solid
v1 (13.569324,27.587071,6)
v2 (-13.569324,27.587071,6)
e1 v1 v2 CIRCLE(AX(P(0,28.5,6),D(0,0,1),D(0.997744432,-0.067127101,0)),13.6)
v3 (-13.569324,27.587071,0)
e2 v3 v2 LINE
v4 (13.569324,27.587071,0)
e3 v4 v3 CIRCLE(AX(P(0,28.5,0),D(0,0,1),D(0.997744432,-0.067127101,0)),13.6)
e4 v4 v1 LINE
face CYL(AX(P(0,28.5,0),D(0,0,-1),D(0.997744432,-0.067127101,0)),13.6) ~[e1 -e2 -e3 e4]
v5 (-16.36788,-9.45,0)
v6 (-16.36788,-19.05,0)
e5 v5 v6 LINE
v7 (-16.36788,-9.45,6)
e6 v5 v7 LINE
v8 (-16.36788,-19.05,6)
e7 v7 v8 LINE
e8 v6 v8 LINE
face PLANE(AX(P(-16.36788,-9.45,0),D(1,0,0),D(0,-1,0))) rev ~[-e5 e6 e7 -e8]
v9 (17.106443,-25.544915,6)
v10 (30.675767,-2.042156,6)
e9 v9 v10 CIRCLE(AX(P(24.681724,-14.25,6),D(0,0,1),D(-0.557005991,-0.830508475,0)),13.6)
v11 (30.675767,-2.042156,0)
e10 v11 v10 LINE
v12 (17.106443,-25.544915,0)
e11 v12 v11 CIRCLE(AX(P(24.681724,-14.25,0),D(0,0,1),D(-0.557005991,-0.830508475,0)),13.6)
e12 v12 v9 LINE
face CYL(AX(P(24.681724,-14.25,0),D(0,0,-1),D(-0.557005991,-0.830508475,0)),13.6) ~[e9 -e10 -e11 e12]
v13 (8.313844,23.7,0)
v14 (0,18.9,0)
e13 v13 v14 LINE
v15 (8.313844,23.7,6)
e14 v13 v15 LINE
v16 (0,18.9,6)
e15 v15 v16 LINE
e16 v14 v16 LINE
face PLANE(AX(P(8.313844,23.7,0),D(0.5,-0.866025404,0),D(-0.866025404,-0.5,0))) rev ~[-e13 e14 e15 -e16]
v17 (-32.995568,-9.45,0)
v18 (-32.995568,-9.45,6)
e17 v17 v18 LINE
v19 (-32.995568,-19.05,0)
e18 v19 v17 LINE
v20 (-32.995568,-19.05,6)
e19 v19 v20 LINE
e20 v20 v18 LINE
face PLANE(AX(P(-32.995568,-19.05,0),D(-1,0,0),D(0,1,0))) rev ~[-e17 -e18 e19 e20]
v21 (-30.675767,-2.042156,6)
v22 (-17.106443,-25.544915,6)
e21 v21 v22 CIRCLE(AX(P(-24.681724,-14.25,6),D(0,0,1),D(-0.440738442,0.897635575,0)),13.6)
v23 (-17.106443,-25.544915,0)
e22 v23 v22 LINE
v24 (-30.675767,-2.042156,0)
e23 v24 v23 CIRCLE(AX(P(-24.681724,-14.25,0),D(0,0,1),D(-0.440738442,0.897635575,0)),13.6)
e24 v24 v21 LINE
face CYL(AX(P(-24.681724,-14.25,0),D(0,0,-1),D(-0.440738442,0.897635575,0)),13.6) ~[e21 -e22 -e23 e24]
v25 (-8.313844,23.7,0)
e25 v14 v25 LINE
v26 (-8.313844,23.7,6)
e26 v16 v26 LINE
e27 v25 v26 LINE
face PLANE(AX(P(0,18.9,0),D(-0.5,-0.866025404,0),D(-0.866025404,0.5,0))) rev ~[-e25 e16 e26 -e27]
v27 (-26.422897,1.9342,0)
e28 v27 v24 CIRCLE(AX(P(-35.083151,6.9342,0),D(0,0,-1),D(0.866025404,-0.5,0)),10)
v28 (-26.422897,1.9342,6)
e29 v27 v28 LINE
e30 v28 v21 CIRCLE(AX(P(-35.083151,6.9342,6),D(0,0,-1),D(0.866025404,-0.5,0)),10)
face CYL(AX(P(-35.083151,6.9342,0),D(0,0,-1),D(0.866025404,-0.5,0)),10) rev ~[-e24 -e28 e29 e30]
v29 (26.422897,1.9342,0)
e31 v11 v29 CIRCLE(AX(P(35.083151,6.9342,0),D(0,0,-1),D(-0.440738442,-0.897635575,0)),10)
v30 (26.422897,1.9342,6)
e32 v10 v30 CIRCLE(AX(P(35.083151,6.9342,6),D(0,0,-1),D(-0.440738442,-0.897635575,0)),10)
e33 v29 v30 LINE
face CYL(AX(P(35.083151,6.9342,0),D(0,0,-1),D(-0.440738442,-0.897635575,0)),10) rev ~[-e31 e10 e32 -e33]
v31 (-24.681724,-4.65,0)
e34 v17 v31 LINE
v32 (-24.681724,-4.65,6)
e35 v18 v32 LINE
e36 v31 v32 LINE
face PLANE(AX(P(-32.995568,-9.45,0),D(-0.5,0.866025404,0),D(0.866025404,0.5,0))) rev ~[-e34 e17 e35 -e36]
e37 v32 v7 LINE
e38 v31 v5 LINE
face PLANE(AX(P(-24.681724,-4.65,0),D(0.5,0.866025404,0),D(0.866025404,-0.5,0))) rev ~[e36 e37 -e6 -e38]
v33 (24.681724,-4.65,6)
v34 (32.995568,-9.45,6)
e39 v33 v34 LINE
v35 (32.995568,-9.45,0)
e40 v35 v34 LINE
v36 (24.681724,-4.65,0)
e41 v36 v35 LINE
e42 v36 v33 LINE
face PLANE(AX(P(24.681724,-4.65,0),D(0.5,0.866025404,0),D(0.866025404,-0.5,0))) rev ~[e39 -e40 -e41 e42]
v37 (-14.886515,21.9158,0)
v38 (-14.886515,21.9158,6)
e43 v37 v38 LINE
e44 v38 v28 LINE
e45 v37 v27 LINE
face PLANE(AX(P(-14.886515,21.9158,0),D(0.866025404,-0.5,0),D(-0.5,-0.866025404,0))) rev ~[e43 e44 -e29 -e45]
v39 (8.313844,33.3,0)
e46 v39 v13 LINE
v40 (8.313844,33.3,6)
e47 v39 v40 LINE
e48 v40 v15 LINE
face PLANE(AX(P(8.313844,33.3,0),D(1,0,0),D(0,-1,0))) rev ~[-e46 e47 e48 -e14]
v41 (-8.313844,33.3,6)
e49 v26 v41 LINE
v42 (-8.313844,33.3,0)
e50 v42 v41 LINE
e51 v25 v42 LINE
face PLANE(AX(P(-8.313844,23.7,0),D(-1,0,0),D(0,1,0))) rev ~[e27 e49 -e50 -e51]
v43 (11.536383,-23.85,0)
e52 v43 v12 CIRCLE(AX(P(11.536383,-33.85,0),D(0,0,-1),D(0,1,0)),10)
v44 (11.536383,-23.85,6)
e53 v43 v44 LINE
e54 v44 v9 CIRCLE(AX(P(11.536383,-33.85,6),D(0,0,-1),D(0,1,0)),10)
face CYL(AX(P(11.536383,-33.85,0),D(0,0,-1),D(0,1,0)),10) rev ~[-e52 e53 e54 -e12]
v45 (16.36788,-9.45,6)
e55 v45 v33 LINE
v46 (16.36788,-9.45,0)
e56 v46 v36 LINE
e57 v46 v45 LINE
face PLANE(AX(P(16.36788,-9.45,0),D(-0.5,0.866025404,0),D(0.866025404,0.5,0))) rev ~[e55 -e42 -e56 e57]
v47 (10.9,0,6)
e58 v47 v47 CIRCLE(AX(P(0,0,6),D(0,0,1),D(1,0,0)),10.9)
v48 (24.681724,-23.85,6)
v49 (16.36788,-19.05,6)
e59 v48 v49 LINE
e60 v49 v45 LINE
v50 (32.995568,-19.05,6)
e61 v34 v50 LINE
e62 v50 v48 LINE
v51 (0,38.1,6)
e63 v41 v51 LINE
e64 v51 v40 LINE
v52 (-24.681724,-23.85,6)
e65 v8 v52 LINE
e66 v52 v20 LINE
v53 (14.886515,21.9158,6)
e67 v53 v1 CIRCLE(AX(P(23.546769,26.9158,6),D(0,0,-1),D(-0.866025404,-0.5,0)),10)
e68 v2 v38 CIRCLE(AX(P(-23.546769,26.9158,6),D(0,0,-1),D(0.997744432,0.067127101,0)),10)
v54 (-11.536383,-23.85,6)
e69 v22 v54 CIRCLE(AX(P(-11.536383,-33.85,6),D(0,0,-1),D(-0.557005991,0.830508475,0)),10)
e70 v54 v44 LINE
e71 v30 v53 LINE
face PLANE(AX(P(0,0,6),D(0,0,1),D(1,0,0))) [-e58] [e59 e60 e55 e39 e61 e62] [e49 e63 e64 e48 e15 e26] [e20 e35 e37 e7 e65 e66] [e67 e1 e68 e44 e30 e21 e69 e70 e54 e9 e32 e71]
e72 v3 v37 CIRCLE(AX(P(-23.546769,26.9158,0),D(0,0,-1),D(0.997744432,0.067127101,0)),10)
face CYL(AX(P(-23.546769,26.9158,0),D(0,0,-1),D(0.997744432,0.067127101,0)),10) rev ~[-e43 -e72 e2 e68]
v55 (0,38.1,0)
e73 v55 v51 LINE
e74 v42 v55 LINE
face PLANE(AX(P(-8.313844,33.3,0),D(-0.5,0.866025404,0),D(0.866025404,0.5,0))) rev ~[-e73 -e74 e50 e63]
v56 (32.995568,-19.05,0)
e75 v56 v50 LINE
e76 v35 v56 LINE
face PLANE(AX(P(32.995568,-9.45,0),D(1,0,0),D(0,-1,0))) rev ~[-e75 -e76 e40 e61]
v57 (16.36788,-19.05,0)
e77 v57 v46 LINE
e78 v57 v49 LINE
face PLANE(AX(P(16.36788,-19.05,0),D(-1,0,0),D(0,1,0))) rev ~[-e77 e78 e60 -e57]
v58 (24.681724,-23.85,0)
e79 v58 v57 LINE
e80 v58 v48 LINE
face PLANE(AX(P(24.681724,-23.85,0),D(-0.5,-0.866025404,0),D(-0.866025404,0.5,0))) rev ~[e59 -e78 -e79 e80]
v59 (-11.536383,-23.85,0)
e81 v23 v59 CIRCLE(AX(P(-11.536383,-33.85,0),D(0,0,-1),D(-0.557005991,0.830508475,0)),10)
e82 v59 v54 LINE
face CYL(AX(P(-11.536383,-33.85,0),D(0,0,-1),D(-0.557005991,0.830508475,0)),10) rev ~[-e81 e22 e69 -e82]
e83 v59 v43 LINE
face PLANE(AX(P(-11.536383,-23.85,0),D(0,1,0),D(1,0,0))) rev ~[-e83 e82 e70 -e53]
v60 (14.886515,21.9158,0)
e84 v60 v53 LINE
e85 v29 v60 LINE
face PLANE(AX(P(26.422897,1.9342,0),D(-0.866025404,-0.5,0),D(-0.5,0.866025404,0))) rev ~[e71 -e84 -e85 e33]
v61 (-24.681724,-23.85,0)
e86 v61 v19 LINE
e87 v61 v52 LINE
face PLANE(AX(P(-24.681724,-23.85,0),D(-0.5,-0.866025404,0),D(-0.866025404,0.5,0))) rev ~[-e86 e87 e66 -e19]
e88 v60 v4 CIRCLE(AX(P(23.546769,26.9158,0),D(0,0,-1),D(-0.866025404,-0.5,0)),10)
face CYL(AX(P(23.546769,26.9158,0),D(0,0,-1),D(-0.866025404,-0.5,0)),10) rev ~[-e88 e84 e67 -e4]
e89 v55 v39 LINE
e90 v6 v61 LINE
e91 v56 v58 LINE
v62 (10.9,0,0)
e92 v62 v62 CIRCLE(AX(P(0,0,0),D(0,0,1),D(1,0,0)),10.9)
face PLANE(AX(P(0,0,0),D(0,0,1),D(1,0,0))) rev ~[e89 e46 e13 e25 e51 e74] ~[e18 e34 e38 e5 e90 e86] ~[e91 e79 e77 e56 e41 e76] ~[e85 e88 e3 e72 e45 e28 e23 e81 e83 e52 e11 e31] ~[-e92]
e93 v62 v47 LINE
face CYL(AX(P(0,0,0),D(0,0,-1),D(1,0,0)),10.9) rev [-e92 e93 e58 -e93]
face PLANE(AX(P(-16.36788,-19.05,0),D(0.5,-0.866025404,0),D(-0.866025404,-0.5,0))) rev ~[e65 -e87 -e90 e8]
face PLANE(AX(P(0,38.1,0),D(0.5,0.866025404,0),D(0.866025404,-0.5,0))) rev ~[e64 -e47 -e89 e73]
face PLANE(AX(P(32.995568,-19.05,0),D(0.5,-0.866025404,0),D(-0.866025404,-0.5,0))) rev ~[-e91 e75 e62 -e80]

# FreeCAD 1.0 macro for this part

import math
import FreeCAD as App
import Part
import Sketcher

V = App.Vector
Q = App.Units.Quantity


def add_polygon(sketch, points):
    """Adds a closed chain of lines whose ends are joined by coincident constraints."""
    first, n = sketch.GeometryCount, len(points)
    for a, b in zip(points, points[1:] + points[:1]):
        sketch.addGeometry(Part.LineSegment(App.Vector(*a, 0), App.Vector(*b, 0)), False)
    for i in range(n):
        sketch.addConstraint(Sketcher.Constraint("Coincident", first + i, 2, first + (i + 1) % n, 1))

doc = App.newDocument("Part")
params = doc.addObject("Spreadsheet::Sheet", "Params")
for row, (alias, value) in enumerate([
    ("sketch1_radius", "10 mm"),
    ("sketch1_diameter", "21.8 mm"),
    ("sketch1_radius2", "13.6 mm"),
    ("sketch1_height", "9.6 mm"),
    ("sketch1_length", "9.6 mm"),
    ("pad1_length", "6 mm"),
], start=1):
    params.set(f"A{row}", alias)
    params.set(f"B{row}", "=" + value)
    params.setAlias(f"B{row}", alias)

body = doc.addObject("PartDesign::Body", "Body")

sketch1 = doc.addObject("Sketcher::SketchObject", "Sketch")
body.addObject(sketch1)
sketch1.AttachmentSupport = (doc.XY_Plane, [""])
sketch1.MapMode = "FlatFace"
sketch1.addGeometry(Part.ArcOfCircle(Part.Circle(V(23.546769, 26.9158, 0), V(0, 0, 1), 10), math.radians(176.151006), math.radians(210)), False)
sketch1.addGeometry(Part.ArcOfCircle(Part.Circle(V(0, 28.5, 0), V(0, 0, 1), 13.6), math.radians(-3.848994), math.radians(183.848994)), False)
sketch1.addGeometry(Part.ArcOfCircle(Part.Circle(V(-23.546769, 26.9158, 0), V(0, 0, 1), 10), math.radians(-30), math.radians(3.848994)), False)
sketch1.addGeometry(Part.LineSegment(V(-14.886515, 21.9158, 0), V(-26.422897, 1.9342, 0)), False)
sketch1.addGeometry(Part.ArcOfCircle(Part.Circle(V(-35.083151, 6.9342, 0), V(0, 0, 1), 10), math.radians(-63.848994), math.radians(-30)), False)
sketch1.addGeometry(Part.ArcOfCircle(Part.Circle(V(-24.681724, -14.25, 0), V(0, 0, 1), 13.6), math.radians(116.151006), math.radians(303.848994)), False)
sketch1.addGeometry(Part.ArcOfCircle(Part.Circle(V(-11.536383, -33.85, 0), V(0, 0, 1), 10), math.radians(90), math.radians(123.848994)), False)
sketch1.addGeometry(Part.LineSegment(V(-11.536383, -23.85, 0), V(11.536383, -23.85, 0)), False)
sketch1.addGeometry(Part.ArcOfCircle(Part.Circle(V(11.536383, -33.85, 0), V(0, 0, 1), 10), math.radians(56.151006), math.radians(90)), False)
sketch1.addGeometry(Part.ArcOfCircle(Part.Circle(V(24.681724, -14.25, 0), V(0, 0, 1), 13.6), math.radians(-123.848994), math.radians(63.848994)), False)
sketch1.addGeometry(Part.ArcOfCircle(Part.Circle(V(35.083151, 6.9342, 0), V(0, 0, 1), 10), math.radians(-150), math.radians(-116.151006)), False)
sketch1.addGeometry(Part.LineSegment(V(26.422897, 1.9342, 0), V(14.886515, 21.9158, 0)), False)
add_polygon(sketch1, [(-32.995568, -19.05), (-32.995568, -9.45), (-24.681724, -4.65), (-16.36788, -9.45), (-16.36788, -19.05), (-24.681724, -23.85)])
add_polygon(sketch1, [(16.36788, -19.05), (16.36788, -9.45), (24.681724, -4.65), (32.995568, -9.45), (32.995568, -19.05), (24.681724, -23.85)])
sketch1.addGeometry(Part.Circle(V(0, 0, 0), V(0, 0, 1), 10.9), False)
add_polygon(sketch1, [(-8.313844, 33.3), (0, 38.1), (8.313844, 33.3), (8.313844, 23.7), (0, 18.9), (-8.313844, 23.7)])
sketch1.addConstraint(Sketcher.Constraint("Tangent", 0, 1, 1, 1))
sketch1.addConstraint(Sketcher.Constraint("Tangent", 1, 2, 2, 2))
sketch1.addConstraint(Sketcher.Constraint("Tangent", 2, 1, 3, 1))
sketch1.addConstraint(Sketcher.Constraint("Tangent", 3, 2, 4, 2))
sketch1.addConstraint(Sketcher.Constraint("Tangent", 4, 1, 5, 1))
sketch1.addConstraint(Sketcher.Constraint("Tangent", 5, 2, 6, 2))
sketch1.addConstraint(Sketcher.Constraint("Tangent", 6, 1, 7, 1))
sketch1.addConstraint(Sketcher.Constraint("Tangent", 7, 2, 8, 2))
sketch1.addConstraint(Sketcher.Constraint("Tangent", 8, 1, 9, 1))
sketch1.addConstraint(Sketcher.Constraint("Tangent", 9, 2, 10, 2))
sketch1.addConstraint(Sketcher.Constraint("Tangent", 10, 1, 11, 1))
sketch1.addConstraint(Sketcher.Constraint("Tangent", 11, 2, 0, 2))
sketch1.addConstraint(Sketcher.Constraint("Horizontal", 7))
sketch1.addConstraint(Sketcher.Constraint("Vertical", 12))
sketch1.addConstraint(Sketcher.Constraint("Vertical", 15))
sketch1.addConstraint(Sketcher.Constraint("Vertical", 18))
sketch1.addConstraint(Sketcher.Constraint("Vertical", 21))
sketch1.addConstraint(Sketcher.Constraint("Vertical", 27))
sketch1.addConstraint(Sketcher.Constraint("Vertical", 30))
sketch1.addConstraint(Sketcher.Constraint("Coincident", 24, 3, -1, 1))
sketch1.addConstraint(Sketcher.Constraint("Equal", 0, 2))
sketch1.addConstraint(Sketcher.Constraint("Equal", 2, 4))
sketch1.addConstraint(Sketcher.Constraint("Equal", 1, 5))
sketch1.addConstraint(Sketcher.Constraint("Equal", 4, 6))
sketch1.addConstraint(Sketcher.Constraint("Equal", 6, 8))
sketch1.addConstraint(Sketcher.Constraint("Equal", 5, 9))
sketch1.addConstraint(Sketcher.Constraint("Equal", 8, 10))
sketch1.addConstraint(Sketcher.Constraint("Symmetric", 0, 3, 2, 3, -2))
sketch1.addConstraint(Sketcher.Constraint("Symmetric", 5, 3, 9, 3, -2))
sketch1.addConstraint(Sketcher.Constraint("Symmetric", 14, 2, 18, 2, -2))
sketch1.addConstraint(Sketcher.Constraint("Symmetric", 13, 2, 19, 2, -2))
sketch1.addConstraint(Sketcher.Constraint("Symmetric", 12, 2, 20, 2, -2))
sketch1.addConstraint(Sketcher.Constraint("Symmetric", 16, 2, 22, 2, -2))
sketch1.addConstraint(Sketcher.Constraint("Symmetric", 27, 2, 29, 2, -2))
sketch1.addConstraint(Sketcher.Constraint("PointOnObject", 25, 2, -2))
sketch1.addConstraint(Sketcher.Constraint("PointOnObject", 28, 2, -2))
sketch1.addConstraint(Sketcher.Constraint("Perpendicular", 11, 13))
sketch1.addConstraint(Sketcher.Constraint("Perpendicular", 3, 14))
sketch1.addConstraint(Sketcher.Constraint("Parallel", 13, 16))
sketch1.addConstraint(Sketcher.Constraint("Parallel", 14, 17))
sketch1.addConstraint(Sketcher.Constraint("Parallel", 16, 19))
sketch1.addConstraint(Sketcher.Constraint("Parallel", 19, 22))
sketch1.addConstraint(Sketcher.Constraint("Parallel", 20, 23))
sketch1.addConstraint(Sketcher.Constraint("Parallel", 22, 25))
sketch1.addConstraint(Sketcher.Constraint("Parallel", 23, 26))
sketch1.addConstraint(Sketcher.Constraint("Parallel", 25, 28))
sketch1.addConstraint(Sketcher.Constraint("Horizontal", 12, 2, 14, 2))
sketch1.addConstraint(Sketcher.Constraint("Horizontal", 7, 2, 16, 2))
sketch1.addConstraint(Sketcher.Constraint("Horizontal", 15, 2, 17, 2))
sketch1.addConstraint(Sketcher.Constraint("Vertical", 5, 3, 13, 2))
sketch1.addConstraint(Sketcher.Constraint("Equal", 21, 27))
sketch1.addConstraint(Sketcher.Constraint("Equal", 23, 25))
sketch1.addConstraint(Sketcher.Constraint("Radius", 0, 10.0))
sketch1.addConstraint(Sketcher.Constraint("Diameter", 24, 21.8))
sketch1.addConstraint(Sketcher.Constraint("Radius", 1, 13.6))
sketch1.addConstraint(Sketcher.Constraint("Angle", 3, Q("-120 deg")))
sketch1.addConstraint(Sketcher.Constraint("DistanceY", 12, 1, 12, 2, 9.6))
sketch1.addConstraint(Sketcher.Constraint("Distance", 13, 9.6))
sketch1.addConstraint(Sketcher.Constraint("DistanceY", -1, 1, 1, 3, 28.5))
sketch1.addConstraint(Sketcher.Constraint("DistanceY", -1, 1, 25, 2, 38.1))
sketch1.addConstraint(Sketcher.Constraint("DistanceY", 6, 3, 5, 3, 19.6))
sketch1.addConstraint(Sketcher.Constraint("DistanceY", 5, 3, -1, 1, 14.25))
sketch1.addConstraint(Sketcher.Constraint("DistanceX", 4, 1, 2, 3, 7.128998))
sketch1.addConstraint(Sketcher.Constraint("DistanceY", -1, 1, 0, 3, 26.9158))
sketch1.setExpression("Constraints[70]", "Params.sketch1_radius")
sketch1.setExpression("Constraints[71]", "Params.sketch1_diameter")
sketch1.setExpression("Constraints[72]", "Params.sketch1_radius2")
sketch1.setExpression("Constraints[74]", "Params.sketch1_height")
sketch1.setExpression("Constraints[75]", "Params.sketch1_length")
pad1 = doc.addObject("PartDesign::Pad", "Pad")
body.addObject(pad1)
pad1.Profile = sketch1
pad1.setExpression("Length", "Params.pad1_length")

doc.recompute()
